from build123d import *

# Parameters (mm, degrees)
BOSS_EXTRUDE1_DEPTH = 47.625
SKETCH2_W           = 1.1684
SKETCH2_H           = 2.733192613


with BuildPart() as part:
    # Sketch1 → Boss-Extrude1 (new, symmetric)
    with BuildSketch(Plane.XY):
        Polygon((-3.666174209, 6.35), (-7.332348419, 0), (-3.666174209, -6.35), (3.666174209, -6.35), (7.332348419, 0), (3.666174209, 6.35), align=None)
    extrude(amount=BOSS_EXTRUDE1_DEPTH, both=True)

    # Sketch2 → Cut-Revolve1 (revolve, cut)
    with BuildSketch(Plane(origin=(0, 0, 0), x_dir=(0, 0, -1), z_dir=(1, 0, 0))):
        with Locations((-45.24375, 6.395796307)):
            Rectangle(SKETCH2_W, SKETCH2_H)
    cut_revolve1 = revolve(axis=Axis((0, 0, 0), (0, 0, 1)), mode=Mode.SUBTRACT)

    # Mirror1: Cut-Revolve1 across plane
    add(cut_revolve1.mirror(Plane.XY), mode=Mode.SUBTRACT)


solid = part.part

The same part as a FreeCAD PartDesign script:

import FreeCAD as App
import Part
import Sketcher

V = App.Vector
Q = App.Units.Quantity

doc = App.newDocument("Part")
body = doc.addObject("PartDesign::Body", "Body")

# Sketch on XY plane
sketch1 = body.newObject("Sketcher::SketchObject", "Sketch")
sketch1.AttachmentSupport = (doc.getObject("XY_Plane"), [""])
sketch1.MapMode = "FlatFace"
sketch1.addGeometry([
    Part.LineSegment(V(-4, 6, 0), V(-7, 0, 0)),  # 0
    Part.LineSegment(V(-7, 0, 0), V(-4, -6, 0)),  # 1
    Part.LineSegment(V(-4, -6, 0), V(4, -6, 0)),  # 2
    Part.LineSegment(V(4, -6, 0), V(7, 0, 0)),  # 3
    Part.LineSegment(V(7, 0, 0), V(4, 6, 0)),  # 4
    Part.LineSegment(V(4, 6, 0), V(-4, 6, 0)),  # 5
], False)
sketch1.addConstraint([
    Sketcher.Constraint("Coincident", 0, 2, 1, 1),
    Sketcher.Constraint("Coincident", 1, 2, 2, 1),
    Sketcher.Constraint("Coincident", 2, 2, 3, 1),
    Sketcher.Constraint("Coincident", 3, 2, 4, 1),
    Sketcher.Constraint("Coincident", 4, 2, 5, 1),
    Sketcher.Constraint("Coincident", 5, 2, 0, 1),
    Sketcher.Constraint("Horizontal", 2),
    Sketcher.Constraint("Horizontal", 5),
    Sketcher.Constraint("Symmetric", 0, 2, 3, 2, -1, 1),
    Sketcher.Constraint("Symmetric", 1, 2, 4, 2, -1, 1),
    Sketcher.Constraint("PointOnObject", 0, 2, -1),
    Sketcher.Constraint("Parallel", 0, 3),
    Sketcher.Constraint("Vertical", 2, 2, 4, 2),
    Sketcher.Constraint("Angle", 0, Q("-120 deg")),
    Sketcher.Constraint("DistanceY", 2, 2, 4, 2, Q("0.5 in")),
    Sketcher.Constraint("DistanceX", 2, 1, 2, 2, 7.332348),
])
pad1 = body.newObject("PartDesign::Pad", "Pad")
pad1.Profile = sketch1
pad1.Length = Q("3.75 in")
pad1.Midplane = True

# Sketch on YZ plane
sketch2 = body.newObject("Sketcher::SketchObject", "Sketch001")
sketch2.AttachmentSupport = (doc.getObject("YZ_Plane"), [""])
sketch2.MapMode = "FlatFace"
sketch2.addGeometry([
    Part.LineSegment(V(7.8, 45.8, 0), V(5, 45.8, 0)),
    Part.LineSegment(V(5, 45.8, 0), V(5, 44.7, 0)),
    Part.LineSegment(V(5, 44.7, 0), V(7.8, 44.7, 0)),
    Part.LineSegment(V(7.8, 44.7, 0), V(7.8, 45.8, 0)),
], False)
sketch2.addConstraint([
    Sketcher.Constraint("Coincident", 0, 2, 1, 1),
    Sketcher.Constraint("Coincident", 1, 2, 2, 1),
    Sketcher.Constraint("Coincident", 2, 2, 3, 1),
    Sketcher.Constraint("Coincident", 3, 2, 0, 1),
    Sketcher.Constraint("Horizontal", 0),
    Sketcher.Constraint("Vertical", 1),
    Sketcher.Constraint("Horizontal", 2),
    Sketcher.Constraint("Vertical", 3),
    Sketcher.Constraint("DistanceY", 1, 2, 1, 1, Q("0.046 in")),
    Sketcher.Constraint("DistanceX", -1, 1, 0, 2, Q("0.198 in")),
    Sketcher.Constraint("DistanceX", 0, 2, 0, 1, 2.733193),
    Sketcher.Constraint("DistanceY", -1, 1, 0, 2, 45.82795),
])
groove = body.newObject("PartDesign::Groove", "Groove")
groove.Profile = sketch2
groove.ReferenceAxis = (sketch2, ["V_Axis"])
groove.Angle = 360
doc.recompute()

mirrored = body.newObject("PartDesign::Mirrored", "Mirrored")
mirrored.Originals = [groove]
mirrored.MirrorPlane = (doc.getObject("XY_Plane"), [""])
body.Tip = mirrored

doc.recompute()
